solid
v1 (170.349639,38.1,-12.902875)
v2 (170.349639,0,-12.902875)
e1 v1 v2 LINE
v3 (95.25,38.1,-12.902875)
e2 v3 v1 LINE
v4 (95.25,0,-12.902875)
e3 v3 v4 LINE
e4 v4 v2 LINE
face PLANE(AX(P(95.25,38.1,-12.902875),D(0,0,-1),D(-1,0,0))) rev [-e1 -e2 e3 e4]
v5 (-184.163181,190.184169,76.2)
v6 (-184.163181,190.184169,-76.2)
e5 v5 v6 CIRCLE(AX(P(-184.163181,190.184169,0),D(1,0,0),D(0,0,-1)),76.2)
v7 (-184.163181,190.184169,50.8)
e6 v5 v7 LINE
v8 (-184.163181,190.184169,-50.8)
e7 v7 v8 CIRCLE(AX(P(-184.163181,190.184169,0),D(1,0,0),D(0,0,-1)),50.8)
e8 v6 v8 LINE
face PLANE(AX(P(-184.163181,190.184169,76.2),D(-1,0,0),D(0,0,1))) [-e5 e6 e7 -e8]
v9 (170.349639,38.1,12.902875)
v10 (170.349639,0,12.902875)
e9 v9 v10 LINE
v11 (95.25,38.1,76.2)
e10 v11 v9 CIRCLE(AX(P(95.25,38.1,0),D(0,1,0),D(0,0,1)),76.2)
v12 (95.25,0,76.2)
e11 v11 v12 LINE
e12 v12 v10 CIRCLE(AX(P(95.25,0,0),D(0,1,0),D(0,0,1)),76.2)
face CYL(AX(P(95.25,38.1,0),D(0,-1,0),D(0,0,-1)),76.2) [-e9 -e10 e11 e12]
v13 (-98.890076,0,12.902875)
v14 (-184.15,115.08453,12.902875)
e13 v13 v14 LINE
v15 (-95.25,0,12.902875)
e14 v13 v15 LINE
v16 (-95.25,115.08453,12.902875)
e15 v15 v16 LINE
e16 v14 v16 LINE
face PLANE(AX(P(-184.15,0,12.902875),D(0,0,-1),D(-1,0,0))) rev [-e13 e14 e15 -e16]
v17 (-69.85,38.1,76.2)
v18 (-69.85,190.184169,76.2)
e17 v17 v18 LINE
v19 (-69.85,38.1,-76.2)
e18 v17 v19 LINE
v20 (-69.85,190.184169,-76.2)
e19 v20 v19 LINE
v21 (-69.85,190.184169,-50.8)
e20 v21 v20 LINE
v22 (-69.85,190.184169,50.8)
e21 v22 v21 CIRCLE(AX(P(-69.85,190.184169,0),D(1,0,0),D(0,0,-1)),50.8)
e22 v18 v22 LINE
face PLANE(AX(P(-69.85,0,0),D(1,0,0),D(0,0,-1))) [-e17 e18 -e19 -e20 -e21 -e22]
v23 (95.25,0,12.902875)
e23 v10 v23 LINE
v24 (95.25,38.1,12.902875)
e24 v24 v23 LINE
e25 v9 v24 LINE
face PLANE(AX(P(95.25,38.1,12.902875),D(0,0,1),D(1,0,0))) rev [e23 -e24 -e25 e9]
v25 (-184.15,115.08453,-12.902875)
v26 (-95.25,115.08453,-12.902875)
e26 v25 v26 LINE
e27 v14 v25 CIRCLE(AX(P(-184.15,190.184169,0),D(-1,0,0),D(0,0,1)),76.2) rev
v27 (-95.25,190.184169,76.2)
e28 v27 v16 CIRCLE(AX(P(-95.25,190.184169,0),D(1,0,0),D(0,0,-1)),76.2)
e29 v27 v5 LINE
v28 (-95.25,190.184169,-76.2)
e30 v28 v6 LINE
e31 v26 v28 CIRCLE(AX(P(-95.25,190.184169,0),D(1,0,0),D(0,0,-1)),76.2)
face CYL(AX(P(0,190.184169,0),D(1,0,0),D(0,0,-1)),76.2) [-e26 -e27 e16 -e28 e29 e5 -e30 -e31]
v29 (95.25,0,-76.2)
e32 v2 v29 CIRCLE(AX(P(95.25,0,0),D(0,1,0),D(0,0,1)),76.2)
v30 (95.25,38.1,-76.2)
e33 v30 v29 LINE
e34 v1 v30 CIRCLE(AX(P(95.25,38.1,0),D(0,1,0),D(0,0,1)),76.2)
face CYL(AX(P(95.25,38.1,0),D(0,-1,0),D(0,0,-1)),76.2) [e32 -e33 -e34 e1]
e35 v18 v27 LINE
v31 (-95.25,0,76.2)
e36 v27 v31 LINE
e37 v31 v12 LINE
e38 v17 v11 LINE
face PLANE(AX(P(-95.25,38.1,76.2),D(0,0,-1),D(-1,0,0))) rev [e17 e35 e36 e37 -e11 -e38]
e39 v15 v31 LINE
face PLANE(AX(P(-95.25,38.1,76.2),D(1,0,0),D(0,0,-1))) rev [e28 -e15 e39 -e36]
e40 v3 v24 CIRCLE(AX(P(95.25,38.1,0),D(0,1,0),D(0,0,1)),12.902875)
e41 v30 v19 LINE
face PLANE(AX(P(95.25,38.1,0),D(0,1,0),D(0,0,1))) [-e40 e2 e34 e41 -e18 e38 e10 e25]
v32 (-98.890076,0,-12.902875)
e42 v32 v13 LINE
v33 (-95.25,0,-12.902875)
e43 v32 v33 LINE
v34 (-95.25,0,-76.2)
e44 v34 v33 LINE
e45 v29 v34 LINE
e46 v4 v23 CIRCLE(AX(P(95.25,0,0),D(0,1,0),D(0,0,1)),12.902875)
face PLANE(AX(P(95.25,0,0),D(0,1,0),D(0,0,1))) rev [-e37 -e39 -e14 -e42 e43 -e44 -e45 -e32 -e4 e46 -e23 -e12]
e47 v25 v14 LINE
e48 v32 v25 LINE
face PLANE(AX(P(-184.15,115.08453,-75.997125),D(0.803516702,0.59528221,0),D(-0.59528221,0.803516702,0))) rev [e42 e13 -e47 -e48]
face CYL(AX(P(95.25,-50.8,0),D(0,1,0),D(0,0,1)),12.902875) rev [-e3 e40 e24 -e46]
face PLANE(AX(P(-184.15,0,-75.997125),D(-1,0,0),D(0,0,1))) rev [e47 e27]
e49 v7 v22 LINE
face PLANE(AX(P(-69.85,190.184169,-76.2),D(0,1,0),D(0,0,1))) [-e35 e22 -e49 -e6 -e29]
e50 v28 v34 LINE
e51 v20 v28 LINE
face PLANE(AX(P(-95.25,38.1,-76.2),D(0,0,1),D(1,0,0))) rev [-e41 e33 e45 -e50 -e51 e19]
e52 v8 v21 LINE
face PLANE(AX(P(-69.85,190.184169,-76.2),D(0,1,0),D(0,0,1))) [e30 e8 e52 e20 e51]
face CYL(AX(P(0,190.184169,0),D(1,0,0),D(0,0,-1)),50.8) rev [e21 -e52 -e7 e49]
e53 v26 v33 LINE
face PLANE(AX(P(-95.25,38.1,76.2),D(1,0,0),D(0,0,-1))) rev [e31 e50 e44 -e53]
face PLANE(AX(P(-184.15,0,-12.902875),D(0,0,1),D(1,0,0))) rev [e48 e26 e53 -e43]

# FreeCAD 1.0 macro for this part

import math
import FreeCAD as App
import Part
import Sketcher
from FreeCAD import Vector
Q = App.Units.Quantity


def add_polygon(sketch, points):
    """Adds a closed chain of lines whose ends are joined by coincident constraints."""
    first, n = sketch.GeometryCount, len(points)
    for a, b in zip(points, points[1:] + points[:1]):
        sketch.addGeometry(Part.LineSegment(App.Vector(*a, 0), App.Vector(*b, 0)), False)
    for i in range(n):
        sketch.addConstraint(Sketcher.Constraint("Coincident", first + i, 2, first + (i + 1) % n, 1))

doc = App.newDocument("Part")
body = doc.addObject("PartDesign::Body", "Body")

# Sketch on XZ plane
sketch1 = body.newObject("Sketcher::SketchObject", "Sketch")
sketch1.AttachmentSupport = (doc.getObject("XZ_Plane"), [""])
sketch1.MapMode = "FlatFace"
sketch1.addGeometry([
    Part.LineSegment(Vector(95.25, 12.902875, 0), Vector(95.25, -12.902875, 0)),  # 0
    Part.LineSegment(Vector(95.25, -12.902875, 0), Vector(170.349639, -12.902875, 0)),  # 1
    Part.ArcOfCircle(Part.Circle(Vector(95.25, 0, 0), Vector(0, 0, 1), 76.2), math.radians(-90), math.radians(-9.748812)),  # 2
    Part.LineSegment(Vector(95.25, -76.2, 0), Vector(-95.25, -76.2, 0)),  # 3
    Part.LineSegment(Vector(-95.25, -76.2, 0), Vector(-95.25, 76.2, 0)),  # 4
    Part.LineSegment(Vector(-95.25, 76.2, 0), Vector(95.25, 76.2, 0)),  # 5
    Part.ArcOfCircle(Part.Circle(Vector(95.25, 0, 0), Vector(0, 0, 1), 76.2), math.radians(9.748812), math.radians(90)),  # 6
    Part.LineSegment(Vector(170.349639, 12.902875, 0), Vector(95.25, 12.902875, 0)),  # 7
], False)
sketch1.addConstraint([
    Sketcher.Constraint("Coincident", 0, 2, 1, 1),
    Sketcher.Constraint("Coincident", 1, 2, 2, 2),
    Sketcher.Constraint("Tangent", 2, 1, 3, 1),
    Sketcher.Constraint("Coincident", 3, 2, 4, 1),
    Sketcher.Constraint("Coincident", 4, 2, 5, 1),
    Sketcher.Constraint("Tangent", 5, 2, 6, 2),
    Sketcher.Constraint("Coincident", 6, 1, 7, 1),
    Sketcher.Constraint("Coincident", 7, 2, 0, 1),
    Sketcher.Constraint("Vertical", 0),
    Sketcher.Constraint("Horizontal", 1),
    Sketcher.Constraint("Horizontal", 3),
    Sketcher.Constraint("Vertical", 4),
    Sketcher.Constraint("Horizontal", 5),
    Sketcher.Constraint("Horizontal", 7),
    Sketcher.Constraint("Coincident", 6, 3, 2, 3),
    Sketcher.Constraint("Equal", 2, 6),
    Sketcher.Constraint("Symmetric", 2, 1, 4, 2, -1, 1),
    Sketcher.Constraint("Vertical", 6, 3, 0, 2),
    Sketcher.Constraint("Vertical", 1, 2, 6, 1),
    Sketcher.Constraint("Radius", 2, Q("3 in")),
    Sketcher.Constraint("DistanceX", 3, 2, 3, 1, Q("7.5 in")),
    Sketcher.Constraint("DistanceX", 1, 1, 1, 2, Q("75.099639 mm")),
])
pad1 = body.newObject("PartDesign::Pad", "Pad")
pad1.Profile = sketch1
pad1.Length = Q("1.5 in")
pad1.Reversed = True

# Sketch on YZ plane
sketch2 = body.newObject("Sketcher::SketchObject", "Sketch001")
sketch2.AttachmentSupport = (doc.getObject("YZ_Plane"), [""])
sketch2.MapMode = "FlatFace"
sketch2.AttachmentOffset = App.Placement(Vector(0, 0, -3.75 * 25.4), App.Rotation())
add_polygon(sketch2, [(190.184169, -76.2), (0, -76.2), (0, 76.2), (190.184169, 76.2)])  # lines 0-3
sketch2.addConstraint([
    Sketcher.Constraint("Horizontal", 0),
    Sketcher.Constraint("Vertical", 1),
    Sketcher.Constraint("Horizontal", 2),
    Sketcher.Constraint("Vertical", 3),
    Sketcher.Constraint("Symmetric", 0, 2, 1, 2, -1, 1),
    Sketcher.Constraint("DistanceY", 1, 1, 1, 2, Q("6 in")),
    Sketcher.Constraint("DistanceX", 0, 2, 0, 1, Q("190.184169 mm")),
])
pad2 = body.newObject("PartDesign::Pad", "Pad001")
pad2.Profile = sketch2
pad2.Length = Q("1 in")

# Sketch on XZ plane
sketch3 = body.newObject("Sketcher::SketchObject", "Sketch002")
sketch3.AttachmentSupport = (doc.getObject("XZ_Plane"), [""])
sketch3.MapMode = "FlatFace"
sketch3.AttachmentOffset = App.Placement(Vector(0, 0, -190.184169), App.Rotation())
add_polygon(sketch3, [(-184.163181, -76.2), (-184.163181, -50.8), (-95.25, -50.8), (-95.25, -76.2)])  # lines 0-3
sketch3.addConstraint([
    Sketcher.Constraint("Vertical", 0),
    Sketcher.Constraint("Horizontal", 1),
    Sketcher.Constraint("Vertical", 2),
    Sketcher.Constraint("Horizontal", 3),
    Sketcher.Constraint("DistanceY", 0, 1, 0, 2, Q("1 in")),
    Sketcher.Constraint("DistanceY", 0, 2, -1, 1, Q("2 in")),
    Sketcher.Constraint("DistanceX", 1, 2, -1, 1, Q("3.75 in")),
    Sketcher.Constraint("DistanceX", 1, 1, 1, 2, Q("88.913181 mm")),
])
revolution = body.newObject("PartDesign::Revolution", "Revolution")
revolution.Profile = sketch3
revolution.ReferenceAxis = (sketch3, ["H_Axis"])
revolution.Angle = 180
revolution.Reversed = True

# Sketch on YZ plane
sketch4 = body.newObject("Sketcher::SketchObject", "Sketch003")
sketch4.AttachmentSupport = (doc.getObject("YZ_Plane"), [""])
sketch4.MapMode = "FlatFace"
sketch4.AttachmentOffset = App.Placement(Vector(0, 0, -3.75 * 25.4), App.Rotation())
add_polygon(sketch4, [(0, -12.902875), (0, 12.902875), (115.08453, 12.902875), (113.984169, 0), (115.08453, -12.902875)])  # lines 0-4
sketch4.addConstraint([
    Sketcher.Constraint("Vertical", 0),
    Sketcher.Constraint("Horizontal", 1),
    Sketcher.Constraint("Horizontal", 4),
    Sketcher.Constraint("Symmetric", 0, 2, 4, 2, -1, 1),
    Sketcher.Constraint("PointOnObject", 2, 2, -1),
    Sketcher.Constraint("Vertical", 1, 2, 3, 2),
    Sketcher.Constraint("DistanceX", 1, 1, 1, 2, Q("115.08453 mm")),
    Sketcher.Constraint("DistanceY", 0, 1, 0, 2, Q("25.805751 mm")),
    Sketcher.Constraint("Distance", 2, Q("12.94971 mm")),
])
pad3 = body.newObject("PartDesign::Pad", "Pad002")
pad3.Profile = sketch4
pad3.Length = Q("3.5 in")
pad3.Reversed = True

# Sketch on XY plane
sketch5 = body.newObject("Sketcher::SketchObject", "Sketch004")
sketch5.AttachmentSupport = (doc.getObject("XY_Plane"), [""])
sketch5.MapMode = "FlatFace"
sketch5.AttachmentOffset = App.Placement(Vector(0, 0, 12.902875), App.Rotation())
add_polygon(sketch5, [(-184.15, 0), (-98.890076, 0), (-184.15, 115.08453)])  # lines 0-2
sketch5.addConstraint([
    Sketcher.Constraint("Horizontal", 0),
    Sketcher.Constraint("Vertical", 2),
    Sketcher.Constraint("PointOnObject", 0, 2, -1),
    Sketcher.Constraint("DistanceX", 1, 2, -1, 1, Q("7.25 in")),
    Sketcher.Constraint("DistanceY", 2, 2, 2, 1, Q("115.08453 mm")),
    Sketcher.Constraint("Distance", 1, Q("143.226058 mm")),
])
pocket1 = body.newObject("PartDesign::Pocket", "Pocket")
pocket1.Profile = sketch5
pocket1.Length = Q("3.5 in")

# Sketch on XZ plane
sketch6 = body.newObject("Sketcher::SketchObject", "Sketch005")
sketch6.AttachmentSupport = (doc.getObject("XZ_Plane"), [""])
sketch6.MapMode = "FlatFace"
sketch6.AttachmentOffset = App.Placement(Vector(0, 0, -1.5 * 25.4), App.Rotation())
sketch6.addGeometry(Part.Circle(Vector(95.25, 0, 0), Vector(0, 0, 1), 12.902875), False)
sketch6.addConstraint([
    Sketcher.Constraint("PointOnObject", 0, 3, -1),
    Sketcher.Constraint("DistanceX", -1, 1, 0, 3, Q("3.75 in")),
    Sketcher.Constraint("Diameter", 0, Q("25.805751 mm")),
])
pocket2 = body.newObject("PartDesign::Pocket", "Pocket001")
pocket2.Profile = sketch6
pocket2.Length = Q("3.5 in")
pocket2.Reversed = True

# Sketch on YZ plane
sketch7 = body.newObject("Sketcher::SketchObject", "Sketch006")
sketch7.AttachmentSupport = (doc.getObject("YZ_Plane"), [""])
sketch7.MapMode = "FlatFace"
sketch7.AttachmentOffset = App.Placement(Vector(0, 0, -2.55 * 25.4), App.Rotation())
sketch7.addGeometry(Part.Circle(Vector(190.184169, 0, 0), Vector(0, 0, 1), 50.8), False)
sketch7.addConstraint([
    Sketcher.Constraint("PointOnObject", 0, 3, -1),
    Sketcher.Constraint("Diameter", 0, Q("4 in")),
    Sketcher.Constraint("DistanceX", -1, 1, 0, 3, Q("190.184169 mm")),
])
pocket3 = body.newObject("PartDesign::Pocket", "Pocket002")
pocket3.Profile = sketch7
pocket3.Length = Q("1.2 in")

doc.recompute()
